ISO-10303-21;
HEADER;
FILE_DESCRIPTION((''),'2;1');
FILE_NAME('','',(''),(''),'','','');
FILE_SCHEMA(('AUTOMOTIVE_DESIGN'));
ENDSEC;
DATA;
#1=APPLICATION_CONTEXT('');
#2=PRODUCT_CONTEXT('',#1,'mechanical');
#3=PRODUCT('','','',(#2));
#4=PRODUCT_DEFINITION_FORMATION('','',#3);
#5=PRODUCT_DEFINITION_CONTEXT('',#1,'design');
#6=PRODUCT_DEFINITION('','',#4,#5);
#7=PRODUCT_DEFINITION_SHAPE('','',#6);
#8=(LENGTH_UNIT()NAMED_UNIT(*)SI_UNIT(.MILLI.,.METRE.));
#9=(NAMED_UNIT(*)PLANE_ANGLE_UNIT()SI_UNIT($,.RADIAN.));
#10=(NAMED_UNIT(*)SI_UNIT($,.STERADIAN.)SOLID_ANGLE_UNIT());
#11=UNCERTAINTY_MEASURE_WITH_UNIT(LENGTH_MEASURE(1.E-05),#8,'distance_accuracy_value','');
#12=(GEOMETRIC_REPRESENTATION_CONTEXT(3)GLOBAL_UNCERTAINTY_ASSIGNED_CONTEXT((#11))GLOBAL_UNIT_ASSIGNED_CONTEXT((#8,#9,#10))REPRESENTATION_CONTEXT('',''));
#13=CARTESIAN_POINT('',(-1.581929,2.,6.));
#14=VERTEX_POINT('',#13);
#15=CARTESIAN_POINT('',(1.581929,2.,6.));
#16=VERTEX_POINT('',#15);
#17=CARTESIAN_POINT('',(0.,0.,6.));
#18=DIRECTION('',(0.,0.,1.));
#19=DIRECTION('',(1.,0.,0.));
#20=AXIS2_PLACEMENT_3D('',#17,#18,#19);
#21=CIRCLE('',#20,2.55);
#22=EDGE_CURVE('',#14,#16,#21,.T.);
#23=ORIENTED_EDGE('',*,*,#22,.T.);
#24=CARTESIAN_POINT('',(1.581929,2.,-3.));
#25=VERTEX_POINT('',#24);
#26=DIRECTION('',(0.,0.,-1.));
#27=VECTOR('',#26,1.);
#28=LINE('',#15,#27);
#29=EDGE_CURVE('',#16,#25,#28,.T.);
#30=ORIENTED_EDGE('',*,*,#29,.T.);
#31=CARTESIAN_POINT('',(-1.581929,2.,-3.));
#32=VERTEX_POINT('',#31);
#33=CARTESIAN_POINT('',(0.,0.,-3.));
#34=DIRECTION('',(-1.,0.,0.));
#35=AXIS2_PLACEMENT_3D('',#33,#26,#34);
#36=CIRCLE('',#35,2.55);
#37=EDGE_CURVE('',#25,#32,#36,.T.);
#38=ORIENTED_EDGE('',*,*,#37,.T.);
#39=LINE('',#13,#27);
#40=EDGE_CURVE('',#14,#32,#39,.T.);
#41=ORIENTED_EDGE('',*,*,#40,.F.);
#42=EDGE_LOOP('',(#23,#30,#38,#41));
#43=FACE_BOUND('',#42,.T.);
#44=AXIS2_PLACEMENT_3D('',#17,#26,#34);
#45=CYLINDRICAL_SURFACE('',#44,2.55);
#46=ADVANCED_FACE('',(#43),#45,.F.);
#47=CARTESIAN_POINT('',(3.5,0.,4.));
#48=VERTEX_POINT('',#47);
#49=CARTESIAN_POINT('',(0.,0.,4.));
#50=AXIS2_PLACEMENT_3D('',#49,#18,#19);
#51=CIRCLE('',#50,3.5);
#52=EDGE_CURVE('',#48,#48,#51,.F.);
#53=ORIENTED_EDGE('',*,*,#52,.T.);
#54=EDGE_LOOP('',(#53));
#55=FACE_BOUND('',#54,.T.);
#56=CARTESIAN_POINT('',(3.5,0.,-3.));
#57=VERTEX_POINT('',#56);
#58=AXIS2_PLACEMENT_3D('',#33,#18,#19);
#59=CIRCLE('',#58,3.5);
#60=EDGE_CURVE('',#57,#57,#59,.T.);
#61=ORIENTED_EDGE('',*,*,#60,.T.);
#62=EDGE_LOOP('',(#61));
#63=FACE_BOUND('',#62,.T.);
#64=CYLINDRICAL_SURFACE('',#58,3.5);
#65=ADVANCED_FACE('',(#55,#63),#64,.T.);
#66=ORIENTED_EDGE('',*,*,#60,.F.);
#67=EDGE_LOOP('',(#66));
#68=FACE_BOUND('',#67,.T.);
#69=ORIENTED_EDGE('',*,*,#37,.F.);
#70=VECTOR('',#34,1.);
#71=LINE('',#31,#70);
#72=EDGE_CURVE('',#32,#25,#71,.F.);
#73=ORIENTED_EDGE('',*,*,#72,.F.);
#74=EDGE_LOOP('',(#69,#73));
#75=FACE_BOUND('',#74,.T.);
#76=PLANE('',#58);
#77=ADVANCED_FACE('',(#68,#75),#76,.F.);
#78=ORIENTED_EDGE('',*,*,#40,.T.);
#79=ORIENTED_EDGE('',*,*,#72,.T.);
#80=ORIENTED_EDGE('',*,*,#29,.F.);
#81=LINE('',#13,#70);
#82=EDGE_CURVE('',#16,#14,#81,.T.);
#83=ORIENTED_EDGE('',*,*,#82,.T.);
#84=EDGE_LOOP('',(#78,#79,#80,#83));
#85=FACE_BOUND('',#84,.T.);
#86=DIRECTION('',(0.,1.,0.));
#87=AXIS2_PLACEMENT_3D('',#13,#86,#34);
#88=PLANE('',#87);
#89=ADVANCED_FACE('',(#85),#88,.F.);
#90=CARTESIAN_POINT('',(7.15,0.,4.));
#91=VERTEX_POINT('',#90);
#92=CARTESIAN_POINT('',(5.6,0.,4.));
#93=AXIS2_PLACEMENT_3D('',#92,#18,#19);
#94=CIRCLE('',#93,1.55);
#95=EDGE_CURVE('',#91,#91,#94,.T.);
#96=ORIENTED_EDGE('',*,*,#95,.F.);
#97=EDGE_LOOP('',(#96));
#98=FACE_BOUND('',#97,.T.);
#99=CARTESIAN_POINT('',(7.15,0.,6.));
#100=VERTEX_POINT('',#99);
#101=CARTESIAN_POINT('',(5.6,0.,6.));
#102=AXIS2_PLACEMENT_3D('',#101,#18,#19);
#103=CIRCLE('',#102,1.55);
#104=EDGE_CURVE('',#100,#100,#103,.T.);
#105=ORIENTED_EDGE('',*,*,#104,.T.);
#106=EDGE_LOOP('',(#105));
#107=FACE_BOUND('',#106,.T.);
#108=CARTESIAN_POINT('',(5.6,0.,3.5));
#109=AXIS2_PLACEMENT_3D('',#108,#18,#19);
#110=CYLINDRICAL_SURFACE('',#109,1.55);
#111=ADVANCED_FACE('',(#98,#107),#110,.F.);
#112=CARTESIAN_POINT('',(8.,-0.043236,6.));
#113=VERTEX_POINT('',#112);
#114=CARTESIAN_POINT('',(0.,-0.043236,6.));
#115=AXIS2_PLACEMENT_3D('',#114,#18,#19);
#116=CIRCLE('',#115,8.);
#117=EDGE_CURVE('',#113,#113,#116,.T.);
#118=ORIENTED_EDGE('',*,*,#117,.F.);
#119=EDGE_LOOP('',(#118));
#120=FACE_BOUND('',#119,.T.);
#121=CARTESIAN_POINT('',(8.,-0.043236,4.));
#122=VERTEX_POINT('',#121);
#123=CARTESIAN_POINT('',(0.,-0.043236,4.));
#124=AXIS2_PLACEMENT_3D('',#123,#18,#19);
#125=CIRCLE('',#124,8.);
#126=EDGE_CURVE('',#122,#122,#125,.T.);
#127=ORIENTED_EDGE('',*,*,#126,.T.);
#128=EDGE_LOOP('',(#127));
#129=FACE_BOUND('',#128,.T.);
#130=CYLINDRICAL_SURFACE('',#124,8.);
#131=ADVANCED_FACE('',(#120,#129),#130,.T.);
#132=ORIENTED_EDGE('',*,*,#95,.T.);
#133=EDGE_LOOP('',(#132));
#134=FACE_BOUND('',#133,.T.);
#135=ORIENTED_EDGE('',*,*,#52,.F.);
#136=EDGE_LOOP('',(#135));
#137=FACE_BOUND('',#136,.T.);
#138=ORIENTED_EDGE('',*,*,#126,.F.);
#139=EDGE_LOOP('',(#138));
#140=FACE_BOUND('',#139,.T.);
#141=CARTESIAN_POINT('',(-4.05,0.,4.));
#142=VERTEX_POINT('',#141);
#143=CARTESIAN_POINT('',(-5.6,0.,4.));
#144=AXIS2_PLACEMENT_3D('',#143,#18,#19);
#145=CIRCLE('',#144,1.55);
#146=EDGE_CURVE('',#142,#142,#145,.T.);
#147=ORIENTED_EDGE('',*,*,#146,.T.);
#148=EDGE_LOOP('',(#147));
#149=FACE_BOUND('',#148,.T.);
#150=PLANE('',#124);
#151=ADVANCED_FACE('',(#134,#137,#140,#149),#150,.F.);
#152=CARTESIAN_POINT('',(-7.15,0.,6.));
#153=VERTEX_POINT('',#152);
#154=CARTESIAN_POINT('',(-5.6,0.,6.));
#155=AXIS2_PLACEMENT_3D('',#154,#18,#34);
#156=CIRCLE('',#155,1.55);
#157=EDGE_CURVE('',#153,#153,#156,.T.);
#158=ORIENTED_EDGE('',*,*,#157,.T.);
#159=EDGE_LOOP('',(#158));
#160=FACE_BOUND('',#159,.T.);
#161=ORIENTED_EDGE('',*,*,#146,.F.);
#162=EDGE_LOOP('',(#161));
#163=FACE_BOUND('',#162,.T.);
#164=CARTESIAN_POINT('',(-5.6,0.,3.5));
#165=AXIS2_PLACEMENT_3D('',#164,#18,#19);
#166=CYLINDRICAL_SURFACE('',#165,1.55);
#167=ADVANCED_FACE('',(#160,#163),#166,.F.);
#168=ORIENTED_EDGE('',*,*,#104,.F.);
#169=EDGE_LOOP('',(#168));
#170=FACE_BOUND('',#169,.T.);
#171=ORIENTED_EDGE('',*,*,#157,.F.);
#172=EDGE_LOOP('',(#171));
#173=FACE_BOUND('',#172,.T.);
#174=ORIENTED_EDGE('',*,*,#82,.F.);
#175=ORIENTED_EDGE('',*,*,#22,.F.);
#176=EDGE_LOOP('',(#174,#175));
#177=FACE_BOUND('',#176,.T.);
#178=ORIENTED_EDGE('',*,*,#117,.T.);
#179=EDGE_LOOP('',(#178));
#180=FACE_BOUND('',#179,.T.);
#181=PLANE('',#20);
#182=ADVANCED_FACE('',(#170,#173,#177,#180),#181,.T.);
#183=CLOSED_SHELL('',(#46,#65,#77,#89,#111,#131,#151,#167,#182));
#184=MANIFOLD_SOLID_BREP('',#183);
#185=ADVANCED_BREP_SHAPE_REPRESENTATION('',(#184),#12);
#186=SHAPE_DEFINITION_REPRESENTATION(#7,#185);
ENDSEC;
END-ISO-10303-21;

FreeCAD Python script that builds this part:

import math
import FreeCAD as App
import Part
import Sketcher
from FreeCAD import Vector
Q = App.Units.Quantity

doc = App.newDocument("Part")
params = doc.addObject("Spreadsheet::Sheet", "Params")
for row, (alias, value) in enumerate([
    ("sketch1_diameter", "7 mm"),
    ("pad1_length", "6 mm"),
    ("pad1_length2", "3 mm"),
    ("sketch2_radius", "2.55 mm"),
    ("sketch3_diameter", "16 mm"),
    ("pad2_length", "2 mm"),
    ("sketch4_radius", "2.55 mm"),
    ("sketch5_diameter", "3.1 mm"),
    ("pocket3_length", "2.5 mm"),
], start=1):
    params.set(f"A{row}", alias)
    params.set(f"B{row}", "=" + value)
    params.setAlias(f"B{row}", alias)

body = doc.addObject("PartDesign::Body", "Body")

sketch1 = body.newObject("Sketcher::SketchObject", "Sketch")
sketch1.AttachmentSupport = (doc.getObject("XY_Plane"), [""])
sketch1.MapMode = "FlatFace"
sketch1.addGeometry(Part.Circle(Vector(0, 0, 0), Vector(0, 0, 1), 3.5), False)
sketch1.addConstraint([
    Sketcher.Constraint("Coincident", 0, 3, -1, 1),
    Sketcher.Constraint("Diameter", 0, Q("7 mm")),
])
sketch1.setExpression("Constraints[1]", "Params.sketch1_diameter")
pad1 = body.newObject("PartDesign::Pad", "Pad")
pad1.Profile = sketch1
pad1.Type = "TwoLengths"
pad1.setExpression("Length", "Params.pad1_length")
pad1.setExpression("Length2", "Params.pad1_length2")

sketch2 = body.newObject("Sketcher::SketchObject", "Sketch001")
sketch2.AttachmentSupport = (doc.getObject("XY_Plane"), [""])
sketch2.MapMode = "FlatFace"
sketch2.AttachmentOffset = App.Placement(Vector(0, 0, -3), App.Rotation())
sketch2.addGeometry([
    Part.LineSegment(Vector(-1.6, 2, 0), Vector(1.6, 2, 0)),
    Part.ArcOfCircle(Part.Circle(Vector(0, 0, 0), Vector(0, 0, 1), 2.5), math.radians(128), math.radians(412)),
], False)
sketch2.addConstraint([
    Sketcher.Constraint("Coincident", 0, 1, 1, 1),
    Sketcher.Constraint("Coincident", 1, 2, 0, 2),
    Sketcher.Constraint("Horizontal", 0),
    Sketcher.Constraint("Coincident", 1, 3, -1, 1),
    Sketcher.Constraint("Radius", 1, Q("2.55 mm")),
    Sketcher.Constraint("DistanceY", -1, 1, 0, 1, Q("2 mm")),
])
sketch2.setExpression("Constraints[4]", "Params.sketch2_radius")
pocket1 = body.newObject("PartDesign::Pocket", "Pocket")
pocket1.Profile = sketch2
pocket1.Type = "ThroughAll"
pocket1.Midplane = True

sketch3 = body.newObject("Sketcher::SketchObject", "Sketch002")
sketch3.AttachmentSupport = (doc.getObject("XY_Plane"), [""])
sketch3.MapMode = "FlatFace"
sketch3.AttachmentOffset = App.Placement(Vector(0, 0, 6), App.Rotation())
sketch3.addGeometry(Part.Circle(Vector(0, 0, 0), Vector(0, 0, 1), 8), False)
sketch3.addConstraint([
    Sketcher.Constraint("PointOnObject", 0, 3, -2),
    Sketcher.Constraint("Diameter", 0, Q("16 mm")),
    Sketcher.Constraint("DistanceY", 0, 3, -1, 1, Q("0.043236 mm")),
])
sketch3.setExpression("Constraints[1]", "Params.sketch3_diameter")
pad2 = body.newObject("PartDesign::Pad", "Pad001")
pad2.Profile = sketch3
pad2.setExpression("Length", "Params.pad2_length")
pad2.Reversed = True

sketch4 = body.newObject("Sketcher::SketchObject", "Sketch003")
sketch4.AttachmentSupport = (doc.getObject("XY_Plane"), [""])
sketch4.MapMode = "FlatFace"
sketch4.AttachmentOffset = App.Placement(Vector(0, 0, 6), App.Rotation())
sketch4.addGeometry([
    Part.LineSegment(Vector(1.6, 2, 0), Vector(-1.6, 2, 0)),
    Part.ArcOfCircle(Part.Circle(Vector(0, 0, 0), Vector(0, 0, 1), 2.5), math.radians(128), math.radians(412)),
], False)
sketch4.addConstraint([
    Sketcher.Constraint("Coincident", 0, 1, 1, 2),
    Sketcher.Constraint("Coincident", 1, 1, 0, 2),
    Sketcher.Constraint("Horizontal", 0),
    Sketcher.Constraint("Coincident", 1, 3, -1, 1),
    Sketcher.Constraint("Radius", 1, Q("2.55 mm")),
    Sketcher.Constraint("DistanceY", -1, 1, 0, 1, Q("2 mm")),
])
sketch4.setExpression("Constraints[4]", "Params.sketch4_radius")
pocket2 = body.newObject("PartDesign::Pocket", "Pocket001")
pocket2.Profile = sketch4
pocket2.Type = "ThroughAll"

sketch5 = body.newObject("Sketcher::SketchObject", "Sketch004")
sketch5.AttachmentSupport = (doc.getObject("XY_Plane"), [""])
sketch5.MapMode = "FlatFace"
sketch5.AttachmentOffset = App.Placement(Vector(0, 0, 6), App.Rotation())
sketch5.addGeometry([
    Part.Circle(Vector(5.6, 0, 0), Vector(0, 0, 1), 1.6),
    Part.Circle(Vector(-5.6, 0, 0), Vector(0, 0, 1), 1.6),
], False)
sketch5.addConstraint([
    Sketcher.Constraint("Equal", 0, 1),
    Sketcher.Constraint("Symmetric", 0, 3, 1, 3, -1, 1),
    Sketcher.Constraint("PointOnObject", 0, 3, -1),
    Sketcher.Constraint("Diameter", 0, Q("3.1 mm")),
    Sketcher.Constraint("DistanceX", -1, 1, 0, 3, Q("5.6 mm")),
])
sketch5.setExpression("Constraints[3]", "Params.sketch5_diameter")
pocket3 = body.newObject("PartDesign::Pocket", "Pocket002")
pocket3.Profile = sketch5
pocket3.setExpression("Length", "Params.pocket3_length")

doc.recompute()
